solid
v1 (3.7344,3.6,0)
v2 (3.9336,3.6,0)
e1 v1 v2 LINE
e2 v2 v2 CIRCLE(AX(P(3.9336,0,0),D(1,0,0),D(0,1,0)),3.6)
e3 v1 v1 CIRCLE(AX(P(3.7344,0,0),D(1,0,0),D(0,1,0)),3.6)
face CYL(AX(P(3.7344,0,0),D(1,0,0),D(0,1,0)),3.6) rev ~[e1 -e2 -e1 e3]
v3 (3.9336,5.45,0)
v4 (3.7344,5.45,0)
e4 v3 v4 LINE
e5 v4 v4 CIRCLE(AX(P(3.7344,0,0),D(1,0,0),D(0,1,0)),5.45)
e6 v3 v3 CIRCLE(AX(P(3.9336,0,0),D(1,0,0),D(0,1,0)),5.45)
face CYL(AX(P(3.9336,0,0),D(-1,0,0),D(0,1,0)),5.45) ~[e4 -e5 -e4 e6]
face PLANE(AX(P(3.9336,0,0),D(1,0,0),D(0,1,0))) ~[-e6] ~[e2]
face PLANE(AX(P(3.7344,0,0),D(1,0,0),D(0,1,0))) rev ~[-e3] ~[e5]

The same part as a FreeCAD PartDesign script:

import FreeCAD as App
import Part
import Sketcher

doc = App.newDocument("Part")
body = doc.addObject("PartDesign::Body", "Body")

# Sketch on XY plane
sketch1 = body.newObject("Sketcher::SketchObject", "Sketch")
sketch1.AttachmentSupport = (doc.getObject("XY_Plane"), [""])
sketch1.MapMode = "FlatFace"
sketch1.addGeometry(Part.LineSegment(App.Vector(3.7344, 5.45, 0), App.Vector(3.7344, 3.6, 0)), False)
sketch1.addGeometry(Part.LineSegment(App.Vector(3.7344, 3.6, 0), App.Vector(3.9336, 3.6, 0)), False)
sketch1.addGeometry(Part.LineSegment(App.Vector(3.9336, 3.6, 0), App.Vector(3.9336, 5.45, 0)), False)
sketch1.addGeometry(Part.LineSegment(App.Vector(3.9336, 5.45, 0), App.Vector(3.7344, 5.45, 0)), False)
sketch1.addConstraint(Sketcher.Constraint("Coincident", 0, 2, 1, 1))
sketch1.addConstraint(Sketcher.Constraint("Coincident", 1, 2, 2, 1))
sketch1.addConstraint(Sketcher.Constraint("Coincident", 2, 2, 3, 1))
sketch1.addConstraint(Sketcher.Constraint("Coincident", 3, 2, 0, 1))
sketch1.addConstraint(Sketcher.Constraint("Vertical", 0))
sketch1.addConstraint(Sketcher.Constraint("Horizontal", 1))
sketch1.addConstraint(Sketcher.Constraint("Vertical", 2))
sketch1.addConstraint(Sketcher.Constraint("Horizontal", 3))
sketch1.addConstraint(Sketcher.Constraint("DistanceY", 0, 2, 0, 1, 1.85))
sketch1.addConstraint(Sketcher.Constraint("DistanceY", -1, 1, 0, 2, 3.6))
sketch1.addConstraint(Sketcher.Constraint("DistanceX", 1, 1, 1, 2, 0.1992))
sketch1.addConstraint(Sketcher.Constraint("DistanceX", -1, 1, 0, 2, 3.7344))
revolution = body.newObject("PartDesign::Revolution", "Revolution")
revolution.Profile = sketch1
revolution.ReferenceAxis = (sketch1, ["H_Axis"])
revolution.Angle = 360

doc.recompute()
